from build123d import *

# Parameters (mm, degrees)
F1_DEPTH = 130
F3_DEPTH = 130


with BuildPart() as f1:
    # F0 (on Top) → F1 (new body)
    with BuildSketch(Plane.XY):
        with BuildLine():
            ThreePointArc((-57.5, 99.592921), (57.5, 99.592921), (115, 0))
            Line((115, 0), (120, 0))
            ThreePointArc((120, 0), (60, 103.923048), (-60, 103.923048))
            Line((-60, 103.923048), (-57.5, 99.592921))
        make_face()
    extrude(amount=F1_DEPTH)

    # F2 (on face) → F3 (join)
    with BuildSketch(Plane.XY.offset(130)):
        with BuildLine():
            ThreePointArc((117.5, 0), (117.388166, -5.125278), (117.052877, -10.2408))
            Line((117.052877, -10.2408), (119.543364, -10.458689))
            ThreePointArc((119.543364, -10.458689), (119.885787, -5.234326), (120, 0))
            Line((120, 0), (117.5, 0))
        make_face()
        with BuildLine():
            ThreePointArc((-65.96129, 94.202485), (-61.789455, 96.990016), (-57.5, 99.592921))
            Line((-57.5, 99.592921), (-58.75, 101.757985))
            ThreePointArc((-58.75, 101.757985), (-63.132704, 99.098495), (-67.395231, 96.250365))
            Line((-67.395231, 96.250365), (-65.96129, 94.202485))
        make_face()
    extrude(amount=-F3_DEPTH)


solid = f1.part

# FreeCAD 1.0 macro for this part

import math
import FreeCAD as App
import Part
import Sketcher
from FreeCAD import Vector
Q = App.Units.Quantity

doc = App.newDocument("Part")
body = doc.addObject("PartDesign::Body", "Body")

sketch1 = body.newObject("Sketcher::SketchObject", "Sketch")
sketch1.AttachmentSupport = (doc.getObject("XY_Plane"), [""])
sketch1.MapMode = "FlatFace"
sketch1.addGeometry([
    Part.ArcOfCircle(Part.Circle(Vector(0, 0, 0), Vector(0, 0, 1), 115), math.radians(0), math.radians(120)),
    Part.LineSegment(Vector(115, 0, 0), Vector(120, 0, 0)),
    Part.ArcOfCircle(Part.Circle(Vector(0, 0, 0), Vector(0, 0, 1), 120), math.radians(0), math.radians(120)),
    Part.LineSegment(Vector(-60, 103.9, 0), Vector(-57.5, 99.6, 0)),
], False)
sketch1.addConstraint([
    Sketcher.Constraint("Coincident", 0, 1, 1, 1),
    Sketcher.Constraint("Coincident", 1, 2, 2, 1),
    Sketcher.Constraint("Coincident", 2, 2, 3, 1),
    Sketcher.Constraint("Coincident", 3, 2, 0, 2),
    Sketcher.Constraint("Horizontal", 1),
    Sketcher.Constraint("Coincident", 0, 3, -1, 1),
    Sketcher.Constraint("Coincident", 2, 3, -1, 1),
    Sketcher.Constraint("PointOnObject", 0, 1, -1),
    Sketcher.Constraint("Radius", 0, 115.0),
    Sketcher.Constraint("Radius", 2, 120.0),
    Sketcher.Constraint("Angle", 3, Q("-60 deg")),
    Sketcher.Constraint("DistanceX", 2, 2, -1, 1, 60.0),
])
pad1 = body.newObject("PartDesign::Pad", "Pad")
pad1.Profile = sketch1
pad1.Length = 130

sketch2 = body.newObject("Sketcher::SketchObject", "Sketch001")
sketch2.AttachmentSupport = (doc.getObject("XY_Plane"), [""])
sketch2.MapMode = "FlatFace"
sketch2.AttachmentOffset = App.Placement(Vector(0, 0, 130), App.Rotation())
sketch2.addGeometry([
    Part.ArcOfCircle(Part.Circle(Vector(0, 0, 0), Vector(0, 0, 1), 117.5), math.radians(-5), math.radians(0)),
    Part.LineSegment(Vector(117.1, -10.2, 0), Vector(119.5, -10.5, 0)),
    Part.ArcOfCircle(Part.Circle(Vector(0, 0, 0), Vector(0, 0, 1), 120), math.radians(-5), math.radians(0)),
    Part.LineSegment(Vector(120, 0, 0), Vector(117.5, 0, 0)),
    Part.ArcOfCircle(Part.Circle(Vector(0, 0, 0), Vector(0, 0, 1), 115), math.radians(120), math.radians(125)),
    Part.LineSegment(Vector(-57.5, 99.6, 0), Vector(-58.8, 101.8, 0)),
    Part.ArcOfCircle(Part.Circle(Vector(0, 0, 0), Vector(0, 0, 1), 117.5), math.radians(120), math.radians(125)),
    Part.LineSegment(Vector(-67.4, 96.3, 0), Vector(-66, 94.2, 0)),
], False)
sketch2.addConstraint([
    Sketcher.Constraint("Coincident", 0, 1, 1, 1),
    Sketcher.Constraint("Coincident", 1, 2, 2, 1),
    Sketcher.Constraint("Coincident", 2, 2, 3, 1),
    Sketcher.Constraint("Coincident", 3, 2, 0, 2),
    Sketcher.Constraint("Coincident", 4, 1, 5, 1),
    Sketcher.Constraint("Coincident", 5, 2, 6, 1),
    Sketcher.Constraint("Coincident", 6, 2, 7, 1),
    Sketcher.Constraint("Coincident", 7, 2, 4, 2),
    Sketcher.Constraint("Horizontal", 3),
    Sketcher.Constraint("PointOnObject", 0, 3, -1),
    Sketcher.Constraint("PointOnObject", 2, 2, -1),
    Sketcher.Constraint("Equal", 1, 5),
    Sketcher.Constraint("Equal", 5, 7),
    Sketcher.Constraint("Angle", 1, Q("-4.999991 deg")),
    Sketcher.Constraint("Angle", 5, Q("119.999994 deg")),
    Sketcher.Constraint("Angle", 7, Q("-55 deg")),
    Sketcher.Constraint("DistanceX", 3, 2, 3, 1, 2.5),
    Sketcher.Constraint("DistanceX", -1, 1, 2, 2, 120.0),
    Sketcher.Constraint("DistanceX", 4, 1, 3, 2, 175.0),
    Sketcher.Constraint("Distance", 1, 2.5),
    Sketcher.Constraint("Radius", 6, 117.499741),
    Sketcher.Constraint("Radius", 0, 117.500035),
    Sketcher.Constraint("Radius", 2, 119.999706),
    Sketcher.Constraint("Radius", 4, 114.999923),
    Sketcher.Constraint("DistanceY", 2, 3, 5, 2, 101.758),
    Sketcher.Constraint("DistanceY", 0, 1, -1, 1, 10.2408),
    Sketcher.Constraint("DistanceX", 6, 3, 0, 3, 0.0001),
    Sketcher.Constraint("DistanceY", 4, 3, 6, 2, 96.250301),
])
pad2 = body.newObject("PartDesign::Pad", "Pad001")
pad2.Profile = sketch2
pad2.Length = 130
pad2.Reversed = True

doc.recompute()
